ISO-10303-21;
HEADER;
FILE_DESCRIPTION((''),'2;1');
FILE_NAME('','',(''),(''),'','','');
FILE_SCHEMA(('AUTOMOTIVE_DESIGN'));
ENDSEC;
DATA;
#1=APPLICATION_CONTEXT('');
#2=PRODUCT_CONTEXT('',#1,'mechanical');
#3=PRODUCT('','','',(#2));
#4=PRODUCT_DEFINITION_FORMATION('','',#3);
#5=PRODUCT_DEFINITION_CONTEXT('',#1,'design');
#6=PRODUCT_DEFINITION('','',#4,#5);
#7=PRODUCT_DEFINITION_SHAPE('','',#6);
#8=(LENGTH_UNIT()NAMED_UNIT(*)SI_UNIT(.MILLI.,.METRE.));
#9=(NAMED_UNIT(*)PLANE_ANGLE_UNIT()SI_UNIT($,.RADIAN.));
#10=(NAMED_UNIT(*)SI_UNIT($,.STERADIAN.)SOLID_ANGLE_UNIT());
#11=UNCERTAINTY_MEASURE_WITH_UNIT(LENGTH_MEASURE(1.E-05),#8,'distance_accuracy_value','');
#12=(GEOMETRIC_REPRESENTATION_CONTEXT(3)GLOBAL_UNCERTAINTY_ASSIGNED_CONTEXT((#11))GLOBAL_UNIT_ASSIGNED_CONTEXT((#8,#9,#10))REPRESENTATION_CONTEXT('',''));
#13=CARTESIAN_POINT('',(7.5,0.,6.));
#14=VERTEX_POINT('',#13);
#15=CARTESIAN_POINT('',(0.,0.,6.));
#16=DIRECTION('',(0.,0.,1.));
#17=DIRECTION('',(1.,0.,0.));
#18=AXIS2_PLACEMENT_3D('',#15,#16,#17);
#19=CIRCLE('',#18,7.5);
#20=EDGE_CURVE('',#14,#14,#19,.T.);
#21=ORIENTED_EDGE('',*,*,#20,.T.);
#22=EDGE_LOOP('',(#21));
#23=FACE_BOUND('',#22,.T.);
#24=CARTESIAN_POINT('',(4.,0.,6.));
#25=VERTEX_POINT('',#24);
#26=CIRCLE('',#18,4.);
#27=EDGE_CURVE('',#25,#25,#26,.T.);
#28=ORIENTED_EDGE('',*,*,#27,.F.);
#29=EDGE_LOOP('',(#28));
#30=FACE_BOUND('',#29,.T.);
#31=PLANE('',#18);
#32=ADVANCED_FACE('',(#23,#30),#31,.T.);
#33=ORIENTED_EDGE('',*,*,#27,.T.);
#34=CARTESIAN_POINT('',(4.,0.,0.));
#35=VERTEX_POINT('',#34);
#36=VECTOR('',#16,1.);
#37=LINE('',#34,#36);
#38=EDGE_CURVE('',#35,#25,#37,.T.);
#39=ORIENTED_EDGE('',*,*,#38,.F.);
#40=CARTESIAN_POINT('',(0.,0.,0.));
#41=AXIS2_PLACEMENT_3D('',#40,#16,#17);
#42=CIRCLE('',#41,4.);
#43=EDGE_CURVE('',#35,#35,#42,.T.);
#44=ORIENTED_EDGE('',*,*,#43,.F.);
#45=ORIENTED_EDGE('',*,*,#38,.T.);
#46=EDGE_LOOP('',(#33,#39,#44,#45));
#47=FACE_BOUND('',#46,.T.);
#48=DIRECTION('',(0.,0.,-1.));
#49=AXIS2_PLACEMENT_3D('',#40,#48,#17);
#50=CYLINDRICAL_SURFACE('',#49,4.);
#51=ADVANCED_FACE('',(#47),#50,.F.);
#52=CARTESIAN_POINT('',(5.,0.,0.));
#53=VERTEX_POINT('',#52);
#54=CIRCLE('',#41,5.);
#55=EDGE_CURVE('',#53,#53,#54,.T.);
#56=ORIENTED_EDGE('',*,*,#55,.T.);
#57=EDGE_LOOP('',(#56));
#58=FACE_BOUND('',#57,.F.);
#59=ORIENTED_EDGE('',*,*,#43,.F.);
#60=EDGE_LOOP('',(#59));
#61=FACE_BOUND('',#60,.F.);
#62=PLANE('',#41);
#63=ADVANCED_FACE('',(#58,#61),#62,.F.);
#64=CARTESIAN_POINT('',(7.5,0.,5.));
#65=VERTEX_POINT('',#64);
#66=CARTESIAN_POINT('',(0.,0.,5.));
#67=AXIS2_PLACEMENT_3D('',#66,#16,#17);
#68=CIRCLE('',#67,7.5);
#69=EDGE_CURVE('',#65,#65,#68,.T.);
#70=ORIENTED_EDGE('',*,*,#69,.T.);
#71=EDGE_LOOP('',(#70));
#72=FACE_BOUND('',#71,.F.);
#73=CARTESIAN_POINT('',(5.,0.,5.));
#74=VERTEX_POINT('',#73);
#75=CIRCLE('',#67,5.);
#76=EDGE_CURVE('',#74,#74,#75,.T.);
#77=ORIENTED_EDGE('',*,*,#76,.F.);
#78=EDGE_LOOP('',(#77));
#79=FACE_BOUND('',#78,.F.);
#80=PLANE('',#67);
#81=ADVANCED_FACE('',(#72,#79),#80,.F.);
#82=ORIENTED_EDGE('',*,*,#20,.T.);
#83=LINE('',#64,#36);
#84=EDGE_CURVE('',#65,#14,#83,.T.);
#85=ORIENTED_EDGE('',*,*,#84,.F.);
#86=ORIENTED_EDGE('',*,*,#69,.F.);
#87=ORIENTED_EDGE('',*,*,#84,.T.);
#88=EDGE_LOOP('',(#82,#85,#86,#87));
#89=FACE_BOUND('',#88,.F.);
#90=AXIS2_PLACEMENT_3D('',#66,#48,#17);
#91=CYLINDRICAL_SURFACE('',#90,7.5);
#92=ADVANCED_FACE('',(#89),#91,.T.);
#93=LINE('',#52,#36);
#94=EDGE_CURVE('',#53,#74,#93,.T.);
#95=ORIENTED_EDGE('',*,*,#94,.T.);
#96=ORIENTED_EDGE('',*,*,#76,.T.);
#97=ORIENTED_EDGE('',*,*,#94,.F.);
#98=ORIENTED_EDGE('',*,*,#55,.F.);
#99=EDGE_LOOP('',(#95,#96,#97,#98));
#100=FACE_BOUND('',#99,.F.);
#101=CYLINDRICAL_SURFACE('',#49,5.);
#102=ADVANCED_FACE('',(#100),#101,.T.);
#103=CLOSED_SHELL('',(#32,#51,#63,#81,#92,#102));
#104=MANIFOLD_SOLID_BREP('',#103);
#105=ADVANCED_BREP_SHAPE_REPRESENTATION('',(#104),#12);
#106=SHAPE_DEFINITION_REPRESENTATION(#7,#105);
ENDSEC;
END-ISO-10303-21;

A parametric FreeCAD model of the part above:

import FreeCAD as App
import Part
import Sketcher

V = App.Vector
Q = App.Units.Quantity

doc = App.newDocument("Part")
body = doc.addObject("PartDesign::Body", "Body")

# Sketch on XY plane
sketch1 = body.newObject("Sketcher::SketchObject", "Sketch")
sketch1.AttachmentSupport = (doc.getObject("XY_Plane"), [""])
sketch1.MapMode = "FlatFace"
sketch1.addGeometry(Part.Circle(V(0, 0, 0), V(0, 0, 1), 5), False)
sketch1.addGeometry(Part.Circle(V(0, 0, 0), V(0, 0, 1), 4), False)
sketch1.addConstraint(Sketcher.Constraint("Coincident", 0, 3, -1, 1))
sketch1.addConstraint(Sketcher.Constraint("Coincident", 1, 3, -1, 1))
sketch1.addConstraint(Sketcher.Constraint("Diameter", 0, Q("10 mm")))
sketch1.addConstraint(Sketcher.Constraint("Diameter", 1, Q("8 mm")))
pad1 = body.newObject("PartDesign::Pad", "Pad")
pad1.Profile = sketch1
pad1.Length = 5

# Sketch on XY plane
sketch2 = body.newObject("Sketcher::SketchObject", "Sketch001")
sketch2.AttachmentSupport = (doc.getObject("XY_Plane"), [""])
sketch2.MapMode = "FlatFace"
sketch2.AttachmentOffset = App.Placement(V(0, 0, 5), App.Rotation())
sketch2.addGeometry(Part.Circle(V(0, 0, 0), V(0, 0, 1), 7.5), False)
sketch2.addGeometry(Part.Circle(V(0, 0, 0), V(0, 0, 1), 4), False)
sketch2.addConstraint(Sketcher.Constraint("Coincident", 0, 3, -1, 1))
sketch2.addConstraint(Sketcher.Constraint("Coincident", 1, 3, -1, 1))
sketch2.addConstraint(Sketcher.Constraint("Diameter", 0, Q("15 mm")))
sketch2.addConstraint(Sketcher.Constraint("Diameter", 1, Q("8 mm")))
pad2 = body.newObject("PartDesign::Pad", "Pad001")
pad2.Profile = sketch2
pad2.Length = 1

doc.recompute()
